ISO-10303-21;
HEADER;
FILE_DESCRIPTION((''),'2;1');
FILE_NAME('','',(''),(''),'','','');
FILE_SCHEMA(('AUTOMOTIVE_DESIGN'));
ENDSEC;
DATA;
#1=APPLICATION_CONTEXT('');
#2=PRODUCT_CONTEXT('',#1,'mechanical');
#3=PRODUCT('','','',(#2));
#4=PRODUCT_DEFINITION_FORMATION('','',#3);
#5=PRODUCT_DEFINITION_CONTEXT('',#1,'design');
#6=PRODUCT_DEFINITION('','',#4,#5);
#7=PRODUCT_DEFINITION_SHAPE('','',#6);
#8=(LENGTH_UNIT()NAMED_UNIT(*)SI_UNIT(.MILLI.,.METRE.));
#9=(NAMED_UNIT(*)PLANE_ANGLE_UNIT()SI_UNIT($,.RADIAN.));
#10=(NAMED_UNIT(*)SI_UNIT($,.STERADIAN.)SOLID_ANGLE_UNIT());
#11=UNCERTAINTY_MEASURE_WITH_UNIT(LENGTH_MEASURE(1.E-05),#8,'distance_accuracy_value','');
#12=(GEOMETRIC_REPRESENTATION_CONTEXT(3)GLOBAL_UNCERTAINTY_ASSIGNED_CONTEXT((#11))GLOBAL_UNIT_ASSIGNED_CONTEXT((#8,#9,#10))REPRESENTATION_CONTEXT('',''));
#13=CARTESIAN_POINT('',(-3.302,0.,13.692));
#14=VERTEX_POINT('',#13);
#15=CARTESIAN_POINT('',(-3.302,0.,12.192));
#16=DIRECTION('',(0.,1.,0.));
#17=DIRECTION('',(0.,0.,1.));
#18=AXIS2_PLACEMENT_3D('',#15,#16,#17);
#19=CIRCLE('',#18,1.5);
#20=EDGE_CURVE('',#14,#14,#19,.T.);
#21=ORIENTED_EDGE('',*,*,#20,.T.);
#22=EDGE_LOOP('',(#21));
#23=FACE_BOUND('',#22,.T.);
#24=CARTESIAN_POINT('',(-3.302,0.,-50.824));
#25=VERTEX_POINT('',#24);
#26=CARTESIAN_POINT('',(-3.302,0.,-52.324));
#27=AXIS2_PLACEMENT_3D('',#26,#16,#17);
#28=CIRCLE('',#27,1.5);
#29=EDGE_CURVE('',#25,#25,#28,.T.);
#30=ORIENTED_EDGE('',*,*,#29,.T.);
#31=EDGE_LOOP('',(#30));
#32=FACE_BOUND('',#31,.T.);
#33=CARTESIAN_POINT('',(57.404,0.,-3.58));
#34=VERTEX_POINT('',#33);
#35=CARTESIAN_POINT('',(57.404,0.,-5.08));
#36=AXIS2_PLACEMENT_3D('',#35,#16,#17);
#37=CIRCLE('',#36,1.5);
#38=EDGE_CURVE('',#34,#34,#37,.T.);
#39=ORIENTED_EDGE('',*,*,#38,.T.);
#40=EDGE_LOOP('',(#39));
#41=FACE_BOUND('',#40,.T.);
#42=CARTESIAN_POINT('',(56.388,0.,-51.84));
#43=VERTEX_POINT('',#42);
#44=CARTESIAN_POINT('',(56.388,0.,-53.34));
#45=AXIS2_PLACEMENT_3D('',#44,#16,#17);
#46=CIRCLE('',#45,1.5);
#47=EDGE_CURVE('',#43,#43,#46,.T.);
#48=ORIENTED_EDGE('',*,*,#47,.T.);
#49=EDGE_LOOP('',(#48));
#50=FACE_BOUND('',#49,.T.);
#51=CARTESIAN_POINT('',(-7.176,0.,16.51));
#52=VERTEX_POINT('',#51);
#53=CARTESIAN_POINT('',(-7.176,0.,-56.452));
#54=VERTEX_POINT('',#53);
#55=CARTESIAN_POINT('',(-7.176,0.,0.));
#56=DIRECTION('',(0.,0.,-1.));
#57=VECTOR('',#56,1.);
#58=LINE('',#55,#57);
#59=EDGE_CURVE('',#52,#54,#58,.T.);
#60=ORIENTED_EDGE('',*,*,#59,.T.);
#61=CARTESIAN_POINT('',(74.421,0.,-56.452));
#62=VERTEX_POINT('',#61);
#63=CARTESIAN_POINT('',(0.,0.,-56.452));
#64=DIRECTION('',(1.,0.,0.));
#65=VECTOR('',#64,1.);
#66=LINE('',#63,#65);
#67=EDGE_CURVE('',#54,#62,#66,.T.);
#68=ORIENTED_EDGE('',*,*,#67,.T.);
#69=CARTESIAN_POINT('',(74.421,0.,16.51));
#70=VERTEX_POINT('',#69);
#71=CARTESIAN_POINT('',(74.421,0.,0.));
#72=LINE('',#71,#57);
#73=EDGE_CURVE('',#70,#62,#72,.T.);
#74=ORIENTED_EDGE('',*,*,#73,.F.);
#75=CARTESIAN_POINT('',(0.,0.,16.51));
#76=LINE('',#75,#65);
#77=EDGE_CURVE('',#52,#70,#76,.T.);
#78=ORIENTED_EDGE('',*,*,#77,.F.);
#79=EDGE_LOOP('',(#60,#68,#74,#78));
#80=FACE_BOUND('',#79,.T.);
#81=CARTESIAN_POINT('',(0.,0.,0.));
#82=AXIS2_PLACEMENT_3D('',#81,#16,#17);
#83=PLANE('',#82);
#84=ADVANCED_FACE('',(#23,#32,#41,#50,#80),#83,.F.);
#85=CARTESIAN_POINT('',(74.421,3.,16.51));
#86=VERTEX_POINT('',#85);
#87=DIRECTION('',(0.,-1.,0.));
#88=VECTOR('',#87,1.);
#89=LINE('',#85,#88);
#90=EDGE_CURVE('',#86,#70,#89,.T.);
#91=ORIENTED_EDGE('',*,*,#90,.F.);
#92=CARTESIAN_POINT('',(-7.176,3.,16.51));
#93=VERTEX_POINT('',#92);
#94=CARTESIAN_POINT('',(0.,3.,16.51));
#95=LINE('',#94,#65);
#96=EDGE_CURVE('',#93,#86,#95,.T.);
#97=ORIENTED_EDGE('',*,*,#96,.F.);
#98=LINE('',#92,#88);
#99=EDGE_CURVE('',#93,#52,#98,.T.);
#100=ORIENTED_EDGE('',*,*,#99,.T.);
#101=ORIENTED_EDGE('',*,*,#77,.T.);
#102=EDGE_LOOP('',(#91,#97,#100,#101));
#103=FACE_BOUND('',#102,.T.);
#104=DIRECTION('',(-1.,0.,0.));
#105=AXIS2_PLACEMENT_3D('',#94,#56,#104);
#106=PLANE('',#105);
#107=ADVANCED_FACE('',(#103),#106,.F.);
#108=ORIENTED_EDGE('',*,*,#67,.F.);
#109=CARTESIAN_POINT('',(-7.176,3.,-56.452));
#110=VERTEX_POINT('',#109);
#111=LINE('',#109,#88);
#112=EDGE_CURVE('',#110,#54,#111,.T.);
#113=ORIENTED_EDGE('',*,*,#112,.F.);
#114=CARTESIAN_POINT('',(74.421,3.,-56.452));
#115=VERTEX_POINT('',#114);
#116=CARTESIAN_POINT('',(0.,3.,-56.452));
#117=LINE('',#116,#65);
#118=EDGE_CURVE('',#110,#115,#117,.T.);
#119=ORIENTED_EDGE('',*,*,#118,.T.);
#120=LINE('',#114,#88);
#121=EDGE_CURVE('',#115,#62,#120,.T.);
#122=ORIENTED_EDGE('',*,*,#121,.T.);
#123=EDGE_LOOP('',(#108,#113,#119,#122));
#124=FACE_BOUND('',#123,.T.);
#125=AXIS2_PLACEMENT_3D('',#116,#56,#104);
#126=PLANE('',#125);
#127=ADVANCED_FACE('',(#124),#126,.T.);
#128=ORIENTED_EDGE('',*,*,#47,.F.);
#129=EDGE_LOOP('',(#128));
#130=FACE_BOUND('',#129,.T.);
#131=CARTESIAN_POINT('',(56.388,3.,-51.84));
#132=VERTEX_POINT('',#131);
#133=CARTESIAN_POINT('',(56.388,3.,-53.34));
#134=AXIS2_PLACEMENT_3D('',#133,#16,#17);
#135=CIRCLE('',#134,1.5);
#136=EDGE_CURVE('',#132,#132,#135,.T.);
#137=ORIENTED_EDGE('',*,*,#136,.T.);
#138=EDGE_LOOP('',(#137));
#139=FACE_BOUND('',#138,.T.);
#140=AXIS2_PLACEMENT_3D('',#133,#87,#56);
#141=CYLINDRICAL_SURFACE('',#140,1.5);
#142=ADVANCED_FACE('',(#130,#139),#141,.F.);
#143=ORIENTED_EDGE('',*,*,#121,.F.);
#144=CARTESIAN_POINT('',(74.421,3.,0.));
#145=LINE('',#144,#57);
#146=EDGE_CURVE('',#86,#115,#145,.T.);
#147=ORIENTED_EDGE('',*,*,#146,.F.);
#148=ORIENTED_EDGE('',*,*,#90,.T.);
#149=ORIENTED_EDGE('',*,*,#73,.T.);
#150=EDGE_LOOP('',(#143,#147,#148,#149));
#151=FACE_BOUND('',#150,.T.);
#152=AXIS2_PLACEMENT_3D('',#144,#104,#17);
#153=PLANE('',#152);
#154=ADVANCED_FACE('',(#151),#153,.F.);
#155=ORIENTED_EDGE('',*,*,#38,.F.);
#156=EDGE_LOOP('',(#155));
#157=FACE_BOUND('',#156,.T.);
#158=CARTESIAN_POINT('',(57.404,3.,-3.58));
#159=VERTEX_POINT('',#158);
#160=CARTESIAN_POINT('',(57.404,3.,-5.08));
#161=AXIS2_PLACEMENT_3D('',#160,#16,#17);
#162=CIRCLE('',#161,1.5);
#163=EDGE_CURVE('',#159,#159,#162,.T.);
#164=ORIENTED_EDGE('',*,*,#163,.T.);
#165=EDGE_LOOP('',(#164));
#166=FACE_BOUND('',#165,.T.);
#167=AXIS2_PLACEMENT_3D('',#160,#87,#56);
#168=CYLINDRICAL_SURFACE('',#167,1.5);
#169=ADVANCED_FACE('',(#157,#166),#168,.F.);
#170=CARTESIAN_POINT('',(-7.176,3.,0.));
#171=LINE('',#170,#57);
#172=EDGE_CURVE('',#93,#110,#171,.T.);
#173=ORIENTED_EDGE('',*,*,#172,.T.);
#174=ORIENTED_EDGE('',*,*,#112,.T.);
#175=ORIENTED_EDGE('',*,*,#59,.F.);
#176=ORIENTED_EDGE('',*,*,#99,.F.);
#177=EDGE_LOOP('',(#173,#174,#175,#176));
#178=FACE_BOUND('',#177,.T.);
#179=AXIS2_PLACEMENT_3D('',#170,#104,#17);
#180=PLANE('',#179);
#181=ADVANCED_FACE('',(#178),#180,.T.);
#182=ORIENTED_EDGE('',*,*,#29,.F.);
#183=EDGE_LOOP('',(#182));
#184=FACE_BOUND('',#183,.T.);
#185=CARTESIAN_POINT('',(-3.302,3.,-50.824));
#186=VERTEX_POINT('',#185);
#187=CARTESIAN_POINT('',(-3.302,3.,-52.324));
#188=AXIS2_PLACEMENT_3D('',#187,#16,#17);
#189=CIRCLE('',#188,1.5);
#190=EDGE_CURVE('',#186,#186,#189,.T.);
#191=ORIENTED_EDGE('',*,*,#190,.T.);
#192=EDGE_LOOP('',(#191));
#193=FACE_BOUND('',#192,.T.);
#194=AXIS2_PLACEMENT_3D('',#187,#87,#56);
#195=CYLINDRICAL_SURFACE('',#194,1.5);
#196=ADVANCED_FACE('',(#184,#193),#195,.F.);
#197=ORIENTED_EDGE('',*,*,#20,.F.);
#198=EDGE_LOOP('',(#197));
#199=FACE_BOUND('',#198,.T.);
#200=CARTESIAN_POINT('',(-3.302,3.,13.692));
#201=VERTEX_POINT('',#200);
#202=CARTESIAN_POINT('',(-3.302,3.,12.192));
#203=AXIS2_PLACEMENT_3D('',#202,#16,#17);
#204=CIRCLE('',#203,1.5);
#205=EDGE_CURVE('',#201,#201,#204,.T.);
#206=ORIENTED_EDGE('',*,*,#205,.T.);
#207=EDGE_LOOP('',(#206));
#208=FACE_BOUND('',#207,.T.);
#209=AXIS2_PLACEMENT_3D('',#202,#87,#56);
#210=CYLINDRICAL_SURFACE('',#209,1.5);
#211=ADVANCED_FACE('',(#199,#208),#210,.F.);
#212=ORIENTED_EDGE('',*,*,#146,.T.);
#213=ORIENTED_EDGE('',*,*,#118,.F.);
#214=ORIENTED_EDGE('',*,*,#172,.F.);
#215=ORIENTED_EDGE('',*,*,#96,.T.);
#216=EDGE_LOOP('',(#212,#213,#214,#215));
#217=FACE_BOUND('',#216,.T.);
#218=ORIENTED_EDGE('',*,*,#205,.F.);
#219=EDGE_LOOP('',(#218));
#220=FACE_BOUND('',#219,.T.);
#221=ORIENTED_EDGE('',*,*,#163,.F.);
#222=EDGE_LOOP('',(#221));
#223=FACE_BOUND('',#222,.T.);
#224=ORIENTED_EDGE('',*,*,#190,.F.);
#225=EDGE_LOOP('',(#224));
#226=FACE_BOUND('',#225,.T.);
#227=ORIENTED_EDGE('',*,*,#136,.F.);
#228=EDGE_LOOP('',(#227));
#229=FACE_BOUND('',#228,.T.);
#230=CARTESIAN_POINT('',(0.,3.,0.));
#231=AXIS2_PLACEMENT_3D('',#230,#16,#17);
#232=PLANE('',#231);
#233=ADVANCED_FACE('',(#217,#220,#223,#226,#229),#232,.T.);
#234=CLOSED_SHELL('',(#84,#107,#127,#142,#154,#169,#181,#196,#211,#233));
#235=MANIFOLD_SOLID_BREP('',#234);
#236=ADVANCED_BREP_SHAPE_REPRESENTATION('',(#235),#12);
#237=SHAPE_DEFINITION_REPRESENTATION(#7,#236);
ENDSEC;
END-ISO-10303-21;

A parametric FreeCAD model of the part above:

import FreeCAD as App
import Part
import Sketcher


def add_polygon(sketch, points):
    """Adds a closed chain of lines whose ends are joined by coincident constraints."""
    first, n = sketch.GeometryCount, len(points)
    for a, b in zip(points, points[1:] + points[:1]):
        sketch.addGeometry(Part.LineSegment(App.Vector(*a, 0), App.Vector(*b, 0)), False)
    for i in range(n):
        sketch.addConstraint(Sketcher.Constraint("Coincident", first + i, 2, first + (i + 1) % n, 1))

doc = App.newDocument("Part")
params = doc.addObject("Spreadsheet::Sheet", "Params")
for row, (alias, value) in enumerate([
    ("sketch1_diameter", "3 mm"),
    ("pad1_length", "3 mm"),
], start=1):
    params.set(f"A{row}", alias)
    params.set(f"B{row}", "=" + value)
    params.setAlias(f"B{row}", alias)

body = doc.addObject("PartDesign::Body", "Body")

sketch1 = body.newObject("Sketcher::SketchObject", "Sketch")
sketch1.AttachmentSupport = (doc.getObject("XZ_Plane"), [""])
sketch1.MapMode = "FlatFace"
add_polygon(sketch1, [(-7.2, -56.5), (-7.2, 16.5), (74.4, 16.5), (74.4, -56.5)])
sketch1.addGeometry(Part.Circle(App.Vector(-3.3, 12.2, 0), App.Vector(0, 0, 1), 1.5), False)
sketch1.addGeometry(Part.Circle(App.Vector(57.4, -5.1, 0), App.Vector(0, 0, 1), 1.5), False)
sketch1.addGeometry(Part.Circle(App.Vector(-3.3, -52.3, 0), App.Vector(0, 0, 1), 1.5), False)
sketch1.addGeometry(Part.Circle(App.Vector(56.4, -53.3, 0), App.Vector(0, 0, 1), 1.5), False)
sketch1.addConstraint([
    Sketcher.Constraint("Vertical", 0),
    Sketcher.Constraint("Horizontal", 1),
    Sketcher.Constraint("Vertical", 2),
    Sketcher.Constraint("Horizontal", 3),
    Sketcher.Constraint("Equal", 4, 5),
    Sketcher.Constraint("Equal", 5, 6),
    Sketcher.Constraint("Equal", 6, 7),
    Sketcher.Constraint("Vertical", 4, 3, 6, 3),
    Sketcher.Constraint("Diameter", 4, 3.0),
    Sketcher.Constraint("DistanceX", 1, 1, 1, 2, 81.597),
    Sketcher.Constraint("DistanceY", 0, 1, 0, 2, 72.962),
    Sketcher.Constraint("DistanceY", 5, 3, -1, 1, 5.08),
    Sketcher.Constraint("DistanceY", 7, 3, -1, 1, 53.34),
    Sketcher.Constraint("DistanceY", -1, 1, 0, 2, 16.51),
    Sketcher.Constraint("DistanceX", 6, 3, 7, 3, 59.69),
    Sketcher.Constraint("DistanceX", 0, 2, 5, 3, 64.58),
    Sketcher.Constraint("DistanceX", 4, 3, -1, 1, 3.302),
    Sketcher.Constraint("DistanceY", -1, 1, 4, 3, 12.192),
    Sketcher.Constraint("DistanceX", -1, 1, 5, 3, 57.404),
    Sketcher.Constraint("DistanceY", 6, 3, -1, 1, 52.324),
])
sketch1.setExpression("Constraints[12]", "Params.sketch1_diameter")
pad1 = body.newObject("PartDesign::Pad", "Pad")
pad1.Profile = sketch1
pad1.setExpression("Length", "Params.pad1_length")
pad1.Reversed = True

doc.recompute()
